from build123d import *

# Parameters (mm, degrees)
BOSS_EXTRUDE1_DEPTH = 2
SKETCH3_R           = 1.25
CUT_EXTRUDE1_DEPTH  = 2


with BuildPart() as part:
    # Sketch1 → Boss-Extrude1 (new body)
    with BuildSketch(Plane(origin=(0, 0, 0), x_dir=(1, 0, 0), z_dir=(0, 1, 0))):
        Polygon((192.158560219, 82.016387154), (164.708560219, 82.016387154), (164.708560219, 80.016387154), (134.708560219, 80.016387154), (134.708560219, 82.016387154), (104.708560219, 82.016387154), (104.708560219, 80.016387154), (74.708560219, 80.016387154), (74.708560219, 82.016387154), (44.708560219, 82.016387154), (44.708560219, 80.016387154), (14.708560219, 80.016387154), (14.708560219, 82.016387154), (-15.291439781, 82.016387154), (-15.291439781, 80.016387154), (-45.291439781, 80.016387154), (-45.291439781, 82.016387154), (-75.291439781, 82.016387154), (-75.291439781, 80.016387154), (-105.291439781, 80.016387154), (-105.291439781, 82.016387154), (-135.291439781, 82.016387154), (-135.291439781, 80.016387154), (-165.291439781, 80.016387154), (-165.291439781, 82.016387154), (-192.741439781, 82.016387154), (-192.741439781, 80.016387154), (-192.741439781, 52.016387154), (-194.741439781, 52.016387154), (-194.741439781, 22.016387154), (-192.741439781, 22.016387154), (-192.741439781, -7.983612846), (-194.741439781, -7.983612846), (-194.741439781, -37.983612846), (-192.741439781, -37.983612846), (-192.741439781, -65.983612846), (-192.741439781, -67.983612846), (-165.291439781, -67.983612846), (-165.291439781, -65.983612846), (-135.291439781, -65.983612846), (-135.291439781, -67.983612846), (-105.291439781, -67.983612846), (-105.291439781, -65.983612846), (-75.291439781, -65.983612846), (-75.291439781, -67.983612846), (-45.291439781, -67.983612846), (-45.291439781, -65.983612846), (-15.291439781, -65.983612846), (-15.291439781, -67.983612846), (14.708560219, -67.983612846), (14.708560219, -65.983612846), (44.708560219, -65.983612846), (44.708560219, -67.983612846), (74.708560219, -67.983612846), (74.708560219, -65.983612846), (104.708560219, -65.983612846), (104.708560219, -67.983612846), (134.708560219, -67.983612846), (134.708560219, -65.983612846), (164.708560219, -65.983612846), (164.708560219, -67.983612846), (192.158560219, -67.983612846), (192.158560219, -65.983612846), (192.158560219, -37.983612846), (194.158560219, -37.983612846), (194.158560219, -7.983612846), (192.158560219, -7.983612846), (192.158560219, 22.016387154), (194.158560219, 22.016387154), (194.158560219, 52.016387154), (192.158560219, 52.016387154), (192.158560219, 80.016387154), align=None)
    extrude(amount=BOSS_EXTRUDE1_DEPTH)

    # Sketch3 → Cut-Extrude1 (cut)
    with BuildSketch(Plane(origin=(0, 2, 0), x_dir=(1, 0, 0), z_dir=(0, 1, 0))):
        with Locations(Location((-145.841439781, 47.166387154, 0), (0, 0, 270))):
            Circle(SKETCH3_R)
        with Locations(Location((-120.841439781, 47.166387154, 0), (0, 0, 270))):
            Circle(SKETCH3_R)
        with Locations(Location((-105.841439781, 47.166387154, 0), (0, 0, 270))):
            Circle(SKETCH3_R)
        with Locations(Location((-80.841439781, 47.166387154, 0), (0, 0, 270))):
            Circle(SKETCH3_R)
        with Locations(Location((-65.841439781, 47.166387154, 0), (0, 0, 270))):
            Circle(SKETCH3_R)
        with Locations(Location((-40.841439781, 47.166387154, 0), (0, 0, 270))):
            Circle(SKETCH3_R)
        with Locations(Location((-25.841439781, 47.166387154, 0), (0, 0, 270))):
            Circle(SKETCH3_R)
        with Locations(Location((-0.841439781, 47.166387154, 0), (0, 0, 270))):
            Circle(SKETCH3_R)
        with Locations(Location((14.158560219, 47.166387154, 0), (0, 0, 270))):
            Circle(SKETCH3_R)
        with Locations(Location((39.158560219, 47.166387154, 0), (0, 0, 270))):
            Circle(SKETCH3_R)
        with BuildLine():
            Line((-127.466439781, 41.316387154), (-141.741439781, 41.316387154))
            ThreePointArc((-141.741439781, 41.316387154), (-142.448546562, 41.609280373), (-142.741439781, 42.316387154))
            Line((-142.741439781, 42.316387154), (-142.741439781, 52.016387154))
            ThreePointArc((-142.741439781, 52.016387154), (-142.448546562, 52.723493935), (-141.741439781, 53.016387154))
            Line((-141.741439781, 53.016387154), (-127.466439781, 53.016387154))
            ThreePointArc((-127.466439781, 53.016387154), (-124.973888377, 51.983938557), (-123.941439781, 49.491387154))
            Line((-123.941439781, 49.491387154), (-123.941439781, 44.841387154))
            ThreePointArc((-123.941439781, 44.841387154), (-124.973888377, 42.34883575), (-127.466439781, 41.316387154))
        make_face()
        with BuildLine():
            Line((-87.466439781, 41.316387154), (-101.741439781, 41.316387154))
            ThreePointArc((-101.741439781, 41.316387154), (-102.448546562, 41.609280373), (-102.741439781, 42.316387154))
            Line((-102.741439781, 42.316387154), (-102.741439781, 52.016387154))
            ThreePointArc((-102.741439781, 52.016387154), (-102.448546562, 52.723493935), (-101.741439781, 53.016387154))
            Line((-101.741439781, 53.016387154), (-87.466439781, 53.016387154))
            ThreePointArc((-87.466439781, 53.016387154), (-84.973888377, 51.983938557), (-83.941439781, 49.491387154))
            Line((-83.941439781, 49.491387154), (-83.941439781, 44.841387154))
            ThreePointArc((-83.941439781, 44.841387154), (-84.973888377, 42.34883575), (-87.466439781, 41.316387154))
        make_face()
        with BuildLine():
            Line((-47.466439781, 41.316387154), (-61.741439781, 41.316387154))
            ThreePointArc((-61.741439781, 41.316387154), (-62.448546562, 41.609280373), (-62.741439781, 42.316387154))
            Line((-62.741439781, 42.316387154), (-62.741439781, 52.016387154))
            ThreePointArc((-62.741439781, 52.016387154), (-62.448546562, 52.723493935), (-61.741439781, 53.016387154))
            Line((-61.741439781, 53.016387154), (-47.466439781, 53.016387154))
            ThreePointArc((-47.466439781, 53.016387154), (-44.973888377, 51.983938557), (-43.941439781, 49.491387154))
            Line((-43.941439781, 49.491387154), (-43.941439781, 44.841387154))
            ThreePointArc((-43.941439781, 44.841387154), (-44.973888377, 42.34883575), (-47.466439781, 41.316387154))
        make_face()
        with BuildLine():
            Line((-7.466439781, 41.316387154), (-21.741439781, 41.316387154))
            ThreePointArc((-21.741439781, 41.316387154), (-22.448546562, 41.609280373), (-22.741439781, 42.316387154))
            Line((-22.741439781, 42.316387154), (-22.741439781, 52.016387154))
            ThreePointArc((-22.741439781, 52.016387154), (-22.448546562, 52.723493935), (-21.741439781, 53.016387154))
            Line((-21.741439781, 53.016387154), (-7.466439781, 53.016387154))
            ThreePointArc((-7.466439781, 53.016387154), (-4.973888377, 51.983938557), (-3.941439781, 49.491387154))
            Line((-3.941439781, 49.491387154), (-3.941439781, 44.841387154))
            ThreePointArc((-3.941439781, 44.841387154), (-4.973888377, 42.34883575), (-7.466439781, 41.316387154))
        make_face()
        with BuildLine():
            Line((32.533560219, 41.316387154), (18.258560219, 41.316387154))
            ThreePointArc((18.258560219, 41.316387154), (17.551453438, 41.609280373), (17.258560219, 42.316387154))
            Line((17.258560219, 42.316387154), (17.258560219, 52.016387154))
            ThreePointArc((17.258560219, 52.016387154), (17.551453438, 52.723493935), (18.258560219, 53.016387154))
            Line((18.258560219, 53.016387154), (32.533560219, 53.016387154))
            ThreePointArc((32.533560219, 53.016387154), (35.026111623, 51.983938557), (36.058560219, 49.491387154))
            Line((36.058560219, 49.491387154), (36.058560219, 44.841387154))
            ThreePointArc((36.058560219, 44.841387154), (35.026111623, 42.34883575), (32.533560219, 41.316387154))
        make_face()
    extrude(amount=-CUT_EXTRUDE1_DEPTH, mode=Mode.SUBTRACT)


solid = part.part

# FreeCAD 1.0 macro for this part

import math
import FreeCAD as App
import Part
import Sketcher
from FreeCAD import Vector


def add_polygon(sketch, points):
    """Adds a closed chain of lines whose ends are joined by coincident constraints."""
    first, n = sketch.GeometryCount, len(points)
    for a, b in zip(points, points[1:] + points[:1]):
        sketch.addGeometry(Part.LineSegment(App.Vector(*a, 0), App.Vector(*b, 0)), False)
    for i in range(n):
        sketch.addConstraint(Sketcher.Constraint("Coincident", first + i, 2, first + (i + 1) % n, 1))

doc = App.newDocument("Part")
params = doc.addObject("Spreadsheet::Sheet", "Params")
for row, (alias, value) in enumerate([
    ("sketch1_width", "30 mm"),
    ("sketch1_width2", "2 mm"),
    ("sketch1_width3", "27.45 mm"),
    ("pad1_length", "2 mm"),
    ("sketch2_radius", "1 mm"),
    ("sketch2_diameter", "2.5 mm"),
    ("sketch2_height", "9.7 mm"),
    ("pocket1_length", "2 mm"),
], start=1):
    params.set(f"A{row}", alias)
    params.set(f"B{row}", "=" + value)
    params.setAlias(f"B{row}", alias)

body = doc.addObject("PartDesign::Body", "Body")

# Sketch on XZ plane
sketch1 = doc.addObject("Sketcher::SketchObject", "Sketch")
body.addObject(sketch1)
sketch1.AttachmentSupport = (doc.XZ_Plane, [""])
sketch1.MapMode = "FlatFace"
add_polygon(sketch1, [(192.2, -82), (164.7, -82), (164.7, -80), (134.7, -80), (134.7, -82), (104.7, -82), (104.7, -80), (74.7, -80), (74.7, -82), (44.7, -82), (44.7, -80), (14.7, -80), (14.7, -82), (-15.3, -82), (-15.3, -80), (-45.3, -80), (-45.3, -82), (-75.3, -82), (-75.3, -80), (-105.3, -80), (-105.3, -82), (-135.3, -82), (-135.3, -80), (-165.3, -80), (-165.3, -82), (-192.7, -82), (-192.7, -52), (-194.7, -52), (-194.7, -22), (-192.7, -22), (-192.7, 8), (-194.7, 8), (-194.7, 38), (-192.7, 38), (-192.7, 68), (-165.3, 68), (-165.3, 66), (-135.3, 66), (-135.3, 68), (-105.3, 68), (-105.3, 66), (-75.3, 66), (-75.3, 68), (-45.3, 68), (-45.3, 66), (-15.3, 66), (-15.3, 68), (14.7, 68), (14.7, 66), (44.7, 66), (44.7, 68), (74.7, 68), (74.7, 66), (104.7, 66), (104.7, 68), (134.7, 68), (134.7, 66), (164.7, 66), (164.7, 68), (192.2, 68), (192.2, 38), (194.2, 38), (194.2, 8), (192.2, 8), (192.2, -22), (194.2, -22), (194.2, -52), (192.2, -52)])  # lines 0-67
sketch1.addConstraint([
    Sketcher.Constraint("Horizontal", 0),
    Sketcher.Constraint("Vertical", 1),
    Sketcher.Constraint("Horizontal", 2),
    Sketcher.Constraint("Vertical", 3),
    Sketcher.Constraint("Horizontal", 4),
    Sketcher.Constraint("Vertical", 5),
    Sketcher.Constraint("Horizontal", 6),
    Sketcher.Constraint("Vertical", 7),
    Sketcher.Constraint("Horizontal", 8),
    Sketcher.Constraint("Vertical", 9),
    Sketcher.Constraint("Horizontal", 10),
    Sketcher.Constraint("Vertical", 11),
    Sketcher.Constraint("Horizontal", 12),
    Sketcher.Constraint("Vertical", 13),
    Sketcher.Constraint("Horizontal", 14),
    Sketcher.Constraint("Vertical", 15),
    Sketcher.Constraint("Horizontal", 16),
    Sketcher.Constraint("Vertical", 17),
    Sketcher.Constraint("Horizontal", 18),
    Sketcher.Constraint("Vertical", 19),
    Sketcher.Constraint("Horizontal", 20),
    Sketcher.Constraint("Vertical", 21),
    Sketcher.Constraint("Horizontal", 22),
    Sketcher.Constraint("Vertical", 23),
    Sketcher.Constraint("Horizontal", 24),
    Sketcher.Constraint("Vertical", 25),
    Sketcher.Constraint("Horizontal", 26),
    Sketcher.Constraint("Vertical", 27),
    Sketcher.Constraint("Horizontal", 28),
    Sketcher.Constraint("Vertical", 29),
    Sketcher.Constraint("Horizontal", 30),
    Sketcher.Constraint("Vertical", 31),
    Sketcher.Constraint("Horizontal", 32),
    Sketcher.Constraint("Vertical", 33),
    Sketcher.Constraint("Horizontal", 34),
    Sketcher.Constraint("Vertical", 35),
    Sketcher.Constraint("Horizontal", 36),
    Sketcher.Constraint("Vertical", 37),
    Sketcher.Constraint("Horizontal", 38),
    Sketcher.Constraint("Vertical", 39),
    Sketcher.Constraint("Horizontal", 40),
    Sketcher.Constraint("Vertical", 41),
    Sketcher.Constraint("Horizontal", 42),
    Sketcher.Constraint("Vertical", 43),
    Sketcher.Constraint("Horizontal", 44),
    Sketcher.Constraint("Vertical", 45),
    Sketcher.Constraint("Horizontal", 46),
    Sketcher.Constraint("Vertical", 47),
    Sketcher.Constraint("Horizontal", 48),
    Sketcher.Constraint("Vertical", 49),
    Sketcher.Constraint("Horizontal", 50),
    Sketcher.Constraint("Vertical", 51),
    Sketcher.Constraint("Horizontal", 52),
    Sketcher.Constraint("Vertical", 53),
    Sketcher.Constraint("Horizontal", 54),
    Sketcher.Constraint("Vertical", 55),
    Sketcher.Constraint("Horizontal", 56),
    Sketcher.Constraint("Vertical", 57),
    Sketcher.Constraint("Horizontal", 58),
    Sketcher.Constraint("Vertical", 59),
    Sketcher.Constraint("Horizontal", 60),
    Sketcher.Constraint("Vertical", 61),
    Sketcher.Constraint("Horizontal", 62),
    Sketcher.Constraint("Vertical", 63),
    Sketcher.Constraint("Horizontal", 64),
    Sketcher.Constraint("Vertical", 65),
    Sketcher.Constraint("Horizontal", 66),
    Sketcher.Constraint("Vertical", 67),
    Sketcher.Constraint("Horizontal", 0, 2, 3, 2),
    Sketcher.Constraint("Horizontal", 2, 2, 5, 2),
    Sketcher.Constraint("Horizontal", 4, 2, 7, 2),
    Sketcher.Constraint("Horizontal", 6, 2, 9, 2),
    Sketcher.Constraint("Horizontal", 8, 2, 11, 2),
    Sketcher.Constraint("Horizontal", 10, 2, 13, 2),
    Sketcher.Constraint("Horizontal", 12, 2, 15, 2),
    Sketcher.Constraint("Horizontal", 14, 2, 17, 2),
    Sketcher.Constraint("Horizontal", 16, 2, 19, 2),
    Sketcher.Constraint("Horizontal", 18, 2, 21, 2),
    Sketcher.Constraint("Horizontal", 20, 2, 23, 2),
    Sketcher.Constraint("Horizontal", 34, 2, 37, 2),
    Sketcher.Constraint("Horizontal", 36, 2, 39, 2),
    Sketcher.Constraint("Horizontal", 38, 2, 41, 2),
    Sketcher.Constraint("Horizontal", 40, 2, 43, 2),
    Sketcher.Constraint("Horizontal", 42, 2, 45, 2),
    Sketcher.Constraint("Horizontal", 44, 2, 47, 2),
    Sketcher.Constraint("Horizontal", 46, 2, 49, 2),
    Sketcher.Constraint("Horizontal", 48, 2, 51, 2),
    Sketcher.Constraint("Horizontal", 50, 2, 53, 2),
    Sketcher.Constraint("Horizontal", 52, 2, 55, 2),
    Sketcher.Constraint("Horizontal", 54, 2, 57, 2),
    Sketcher.Constraint("Horizontal", 32, 2, 59, 2),
    Sketcher.Constraint("Horizontal", 30, 2, 61, 2),
    Sketcher.Constraint("Horizontal", 28, 2, 63, 2),
    Sketcher.Constraint("Horizontal", 26, 2, 65, 2),
    Sketcher.Constraint("Vertical", 25, 2, 28, 2),
    Sketcher.Constraint("Vertical", 27, 2, 30, 2),
    Sketcher.Constraint("Vertical", 29, 2, 32, 2),
    Sketcher.Constraint("Vertical", 23, 2, 34, 2),
    Sketcher.Constraint("Vertical", 21, 2, 36, 2),
    Sketcher.Constraint("Vertical", 19, 2, 38, 2),
    Sketcher.Constraint("Vertical", 17, 2, 40, 2),
    Sketcher.Constraint("Vertical", 15, 2, 42, 2),
    Sketcher.Constraint("Vertical", 13, 2, 44, 2),
    Sketcher.Constraint("Vertical", 11, 2, 46, 2),
    Sketcher.Constraint("Vertical", 9, 2, 48, 2),
    Sketcher.Constraint("Vertical", 7, 2, 50, 2),
    Sketcher.Constraint("Vertical", 5, 2, 52, 2),
    Sketcher.Constraint("Vertical", 3, 2, 54, 2),
    Sketcher.Constraint("Vertical", 1, 2, 56, 2),
    Sketcher.Constraint("Vertical", 59, 2, 62, 2),
    Sketcher.Constraint("Vertical", 61, 2, 64, 2),
    Sketcher.Constraint("Vertical", 63, 2, 66, 2),
    Sketcher.Constraint("Equal", 2, 4),
    Sketcher.Constraint("Equal", 4, 6),
    Sketcher.Constraint("Equal", 6, 8),
    Sketcher.Constraint("Equal", 8, 10),
    Sketcher.Constraint("Equal", 10, 12),
    Sketcher.Constraint("Equal", 12, 14),
    Sketcher.Constraint("Equal", 14, 16),
    Sketcher.Constraint("Equal", 16, 18),
    Sketcher.Constraint("Equal", 18, 20),
    Sketcher.Constraint("Equal", 20, 22),
    Sketcher.Constraint("Equal", 0, 24),
    Sketcher.Constraint("Equal", 32, 60),
    Sketcher.Constraint("Equal", 66, 1),
    Sketcher.Constraint("Equal", 56, 25),
    Sketcher.Constraint("Equal", 25, 27),
    Sketcher.Constraint("Equal", 27, 29),
    Sketcher.Constraint("Equal", 29, 31),
    Sketcher.Constraint("Equal", 31, 33),
    Sketcher.Constraint("Equal", 23, 35),
    Sketcher.Constraint("DistanceX", 2, 2, 2, 1, 30.0),
    Sketcher.Constraint("DistanceX", 26, 2, 26, 1, 2.0),
    Sketcher.Constraint("DistanceX", 0, 2, 0, 1, 27.45),
    Sketcher.Constraint("DistanceX", -1, 1, 0, 2, 164.70856),
    Sketcher.Constraint("DistanceY", 0, 2, -1, 1, 82.016387),
])
sketch1.setExpression("Constraints[199]", "Params.sketch1_width")
sketch1.setExpression("Constraints[200]", "Params.sketch1_width2")
sketch1.setExpression("Constraints[201]", "Params.sketch1_width3")
pad1 = doc.addObject("PartDesign::Pad", "Pad")
body.addObject(pad1)
pad1.Profile = sketch1
pad1.setExpression("Length", "Params.pad1_length")
pad1.Reversed = True

# Sketch on XZ plane
sketch2 = doc.addObject("Sketcher::SketchObject", "Sketch001")
body.addObject(sketch2)
sketch2.AttachmentSupport = (doc.XZ_Plane, [""])
sketch2.MapMode = "FlatFace"
sketch2.AttachmentOffset = App.Placement(Vector(0, 0, -2), App.Rotation())
sketch2.addGeometry([
    Part.Circle(Vector(-145.8, -47.2, 0), Vector(0, 0, 1), 1.2),  # 0
    Part.Circle(Vector(-120.8, -47.2, 0), Vector(0, 0, 1), 1.2),  # 1
    Part.Circle(Vector(-105.8, -47.2, 0), Vector(0, 0, 1), 1.2),  # 2
    Part.Circle(Vector(-80.8, -47.2, 0), Vector(0, 0, 1), 1.2),  # 3
    Part.Circle(Vector(-65.8, -47.2, 0), Vector(0, 0, 1), 1.2),  # 4
    Part.Circle(Vector(-40.8, -47.2, 0), Vector(0, 0, 1), 1.2),  # 5
    Part.Circle(Vector(-25.8, -47.2, 0), Vector(0, 0, 1), 1.2),  # 6
    Part.Circle(Vector(-0.8, -47.2, 0), Vector(0, 0, 1), 1.2),  # 7
    Part.Circle(Vector(14.2, -47.2, 0), Vector(0, 0, 1), 1.2),  # 8
    Part.Circle(Vector(39.2, -47.2, 0), Vector(0, 0, 1), 1.2),  # 9
    Part.LineSegment(Vector(-141.7, -41.3, 0), Vector(-127.5, -41.3, 0)),  # 10
    Part.ArcOfCircle(Part.Circle(Vector(-127.5, -44.8, 0), Vector(0, 0, 1), 3.5), math.radians(0), math.radians(90)),  # 11
    Part.LineSegment(Vector(-123.9, -44.8, 0), Vector(-123.9, -49.5, 0)),  # 12
    Part.ArcOfCircle(Part.Circle(Vector(-127.5, -49.5, 0), Vector(0, 0, 1), 3.5), math.radians(-90), math.radians(0)),  # 13
    Part.LineSegment(Vector(-127.5, -53, 0), Vector(-141.7, -53, 0)),  # 14
    Part.ArcOfCircle(Part.Circle(Vector(-141.7, -52, 0), Vector(0, 0, 1), 1), math.radians(-180), math.radians(-90)),  # 15
    Part.LineSegment(Vector(-142.7, -52, 0), Vector(-142.7, -42.3, 0)),  # 16
    Part.ArcOfCircle(Part.Circle(Vector(-141.7, -42.3, 0), Vector(0, 0, 1), 1), math.radians(90), math.radians(180)),  # 17
    Part.LineSegment(Vector(-101.7, -41.3, 0), Vector(-87.5, -41.3, 0)),  # 18
    Part.ArcOfCircle(Part.Circle(Vector(-87.5, -44.8, 0), Vector(0, 0, 1), 3.5), math.radians(0), math.radians(90)),  # 19
    Part.LineSegment(Vector(-83.9, -44.8, 0), Vector(-83.9, -49.5, 0)),  # 20
    Part.ArcOfCircle(Part.Circle(Vector(-87.5, -49.5, 0), Vector(0, 0, 1), 3.5), math.radians(-90), math.radians(0)),  # 21
    Part.LineSegment(Vector(-87.5, -53, 0), Vector(-101.7, -53, 0)),  # 22
    Part.ArcOfCircle(Part.Circle(Vector(-101.7, -52, 0), Vector(0, 0, 1), 1), math.radians(-180), math.radians(-90)),  # 23
    Part.LineSegment(Vector(-102.7, -52, 0), Vector(-102.7, -42.3, 0)),  # 24
    Part.ArcOfCircle(Part.Circle(Vector(-101.7, -42.3, 0), Vector(0, 0, 1), 1), math.radians(90), math.radians(180)),  # 25
    Part.LineSegment(Vector(-61.7, -41.3, 0), Vector(-47.5, -41.3, 0)),  # 26
    Part.ArcOfCircle(Part.Circle(Vector(-47.5, -44.8, 0), Vector(0, 0, 1), 3.5), math.radians(0), math.radians(90)),  # 27
    Part.LineSegment(Vector(-43.9, -44.8, 0), Vector(-43.9, -49.5, 0)),  # 28
    Part.ArcOfCircle(Part.Circle(Vector(-47.5, -49.5, 0), Vector(0, 0, 1), 3.5), math.radians(-90), math.radians(0)),  # 29
    Part.LineSegment(Vector(-47.5, -53, 0), Vector(-61.7, -53, 0)),  # 30
    Part.ArcOfCircle(Part.Circle(Vector(-61.7, -52, 0), Vector(0, 0, 1), 1), math.radians(-180), math.radians(-90)),  # 31
    Part.LineSegment(Vector(-62.7, -52, 0), Vector(-62.7, -42.3, 0)),  # 32
    Part.ArcOfCircle(Part.Circle(Vector(-61.7, -42.3, 0), Vector(0, 0, 1), 1), math.radians(90), math.radians(180)),  # 33
    Part.LineSegment(Vector(-21.7, -41.3, 0), Vector(-7.5, -41.3, 0)),  # 34
    Part.ArcOfCircle(Part.Circle(Vector(-7.5, -44.8, 0), Vector(0, 0, 1), 3.5), math.radians(0), math.radians(90)),  # 35
    Part.LineSegment(Vector(-3.9, -44.8, 0), Vector(-3.9, -49.5, 0)),  # 36
    Part.ArcOfCircle(Part.Circle(Vector(-7.5, -49.5, 0), Vector(0, 0, 1), 3.5), math.radians(-90), math.radians(0)),  # 37
    Part.LineSegment(Vector(-7.5, -53, 0), Vector(-21.7, -53, 0)),  # 38
    Part.ArcOfCircle(Part.Circle(Vector(-21.7, -52, 0), Vector(0, 0, 1), 1), math.radians(-180), math.radians(-90)),  # 39
    Part.LineSegment(Vector(-22.7, -52, 0), Vector(-22.7, -42.3, 0)),  # 40
    Part.ArcOfCircle(Part.Circle(Vector(-21.7, -42.3, 0), Vector(0, 0, 1), 1), math.radians(90), math.radians(180)),  # 41
    Part.LineSegment(Vector(18.3, -41.3, 0), Vector(32.5, -41.3, 0)),  # 42
    Part.ArcOfCircle(Part.Circle(Vector(32.5, -44.8, 0), Vector(0, 0, 1), 3.5), math.radians(0), math.radians(90)),  # 43
    Part.LineSegment(Vector(36.1, -44.8, 0), Vector(36.1, -49.5, 0)),  # 44
    Part.ArcOfCircle(Part.Circle(Vector(32.5, -49.5, 0), Vector(0, 0, 1), 3.5), math.radians(-90), math.radians(0)),  # 45
    Part.LineSegment(Vector(32.5, -53, 0), Vector(18.3, -53, 0)),  # 46
    Part.ArcOfCircle(Part.Circle(Vector(18.3, -52, 0), Vector(0, 0, 1), 1), math.radians(-180), math.radians(-90)),  # 47
    Part.LineSegment(Vector(17.3, -52, 0), Vector(17.3, -42.3, 0)),  # 48
    Part.ArcOfCircle(Part.Circle(Vector(18.3, -42.3, 0), Vector(0, 0, 1), 1), math.radians(90), math.radians(180)),  # 49
], False)
sketch2.addConstraint([
    Sketcher.Constraint("Tangent", 10, 2, 11, 2),
    Sketcher.Constraint("Tangent", 11, 1, 12, 1),
    Sketcher.Constraint("Tangent", 12, 2, 13, 2),
    Sketcher.Constraint("Tangent", 13, 1, 14, 1),
    Sketcher.Constraint("Tangent", 14, 2, 15, 2),
    Sketcher.Constraint("Tangent", 15, 1, 16, 1),
    Sketcher.Constraint("Tangent", 16, 2, 17, 2),
    Sketcher.Constraint("Tangent", 17, 1, 10, 1),
    Sketcher.Constraint("Tangent", 18, 2, 19, 2),
    Sketcher.Constraint("Tangent", 19, 1, 20, 1),
    Sketcher.Constraint("Tangent", 20, 2, 21, 2),
    Sketcher.Constraint("Tangent", 21, 1, 22, 1),
    Sketcher.Constraint("Tangent", 22, 2, 23, 2),
    Sketcher.Constraint("Tangent", 23, 1, 24, 1),
    Sketcher.Constraint("Tangent", 24, 2, 25, 2),
    Sketcher.Constraint("Tangent", 25, 1, 18, 1),
    Sketcher.Constraint("Tangent", 26, 2, 27, 2),
    Sketcher.Constraint("Tangent", 27, 1, 28, 1),
    Sketcher.Constraint("Tangent", 28, 2, 29, 2),
    Sketcher.Constraint("Tangent", 29, 1, 30, 1),
    Sketcher.Constraint("Tangent", 30, 2, 31, 2),
    Sketcher.Constraint("Tangent", 31, 1, 32, 1),
    Sketcher.Constraint("Tangent", 32, 2, 33, 2),
    Sketcher.Constraint("Tangent", 33, 1, 26, 1),
    Sketcher.Constraint("Tangent", 34, 2, 35, 2),
    Sketcher.Constraint("Tangent", 35, 1, 36, 1),
    Sketcher.Constraint("Tangent", 36, 2, 37, 2),
    Sketcher.Constraint("Tangent", 37, 1, 38, 1),
    Sketcher.Constraint("Tangent", 38, 2, 39, 2),
    Sketcher.Constraint("Tangent", 39, 1, 40, 1),
    Sketcher.Constraint("Tangent", 40, 2, 41, 2),
    Sketcher.Constraint("Tangent", 41, 1, 34, 1),
    Sketcher.Constraint("Tangent", 42, 2, 43, 2),
    Sketcher.Constraint("Tangent", 43, 1, 44, 1),
    Sketcher.Constraint("Tangent", 44, 2, 45, 2),
    Sketcher.Constraint("Tangent", 45, 1, 46, 1),
    Sketcher.Constraint("Tangent", 46, 2, 47, 2),
    Sketcher.Constraint("Tangent", 47, 1, 48, 1),
    Sketcher.Constraint("Tangent", 48, 2, 49, 2),
    Sketcher.Constraint("Tangent", 49, 1, 42, 1),
    Sketcher.Constraint("Horizontal", 10),
    Sketcher.Constraint("Vertical", 12),
    Sketcher.Constraint("Horizontal", 14),
    Sketcher.Constraint("Vertical", 16),
    Sketcher.Constraint("Horizontal", 18),
    Sketcher.Constraint("Vertical", 20),
    Sketcher.Constraint("Horizontal", 22),
    Sketcher.Constraint("Vertical", 24),
    Sketcher.Constraint("Horizontal", 26),
    Sketcher.Constraint("Vertical", 28),
    Sketcher.Constraint("Horizontal", 30),
    Sketcher.Constraint("Vertical", 32),
    Sketcher.Constraint("Horizontal", 34),
    Sketcher.Constraint("Vertical", 36),
    Sketcher.Constraint("Horizontal", 38),
    Sketcher.Constraint("Vertical", 40),
    Sketcher.Constraint("Horizontal", 42),
    Sketcher.Constraint("Vertical", 44),
    Sketcher.Constraint("Horizontal", 46),
    Sketcher.Constraint("Vertical", 48),
    Sketcher.Constraint("Equal", 0, 1),
    Sketcher.Constraint("Equal", 1, 2),
    Sketcher.Constraint("Equal", 2, 3),
    Sketcher.Constraint("Equal", 3, 4),
    Sketcher.Constraint("Equal", 4, 5),
    Sketcher.Constraint("Equal", 5, 6),
    Sketcher.Constraint("Equal", 6, 7),
    Sketcher.Constraint("Equal", 7, 8),
    Sketcher.Constraint("Equal", 8, 9),
    Sketcher.Constraint("Equal", 11, 13),
    Sketcher.Constraint("Equal", 15, 17),
    Sketcher.Constraint("Equal", 13, 19),
    Sketcher.Constraint("Equal", 19, 21),
    Sketcher.Constraint("Equal", 17, 23),
    Sketcher.Constraint("Equal", 23, 25),
    Sketcher.Constraint("Equal", 21, 27),
    Sketcher.Constraint("Equal", 27, 29),
    Sketcher.Constraint("Equal", 25, 31),
    Sketcher.Constraint("Equal", 31, 33),
    Sketcher.Constraint("Equal", 29, 35),
    Sketcher.Constraint("Equal", 35, 37),
    Sketcher.Constraint("Equal", 33, 39),
    Sketcher.Constraint("Equal", 39, 41),
    Sketcher.Constraint("Equal", 37, 43),
    Sketcher.Constraint("Equal", 43, 45),
    Sketcher.Constraint("Equal", 41, 47),
    Sketcher.Constraint("Equal", 47, 49),
    Sketcher.Constraint("Horizontal", 0, 3, 1, 3),
    Sketcher.Constraint("Horizontal", 1, 3, 2, 3),
    Sketcher.Constraint("Horizontal", 2, 3, 3, 3),
    Sketcher.Constraint("Horizontal", 3, 3, 4, 3),
    Sketcher.Constraint("Horizontal", 4, 3, 5, 3),
    Sketcher.Constraint("Horizontal", 5, 3, 6, 3),
    Sketcher.Constraint("Horizontal", 6, 3, 7, 3),
    Sketcher.Constraint("Horizontal", 7, 3, 8, 3),
    Sketcher.Constraint("Horizontal", 8, 3, 9, 3),
    Sketcher.Constraint("Horizontal", 11, 3, 19, 3),
    Sketcher.Constraint("Horizontal", 13, 3, 21, 3),
    Sketcher.Constraint("Horizontal", 19, 3, 27, 3),
    Sketcher.Constraint("Horizontal", 21, 3, 29, 3),
    Sketcher.Constraint("Horizontal", 27, 3, 35, 3),
    Sketcher.Constraint("Horizontal", 29, 3, 37, 3),
    Sketcher.Constraint("Horizontal", 35, 3, 43, 3),
    Sketcher.Constraint("Horizontal", 37, 3, 45, 3),
    Sketcher.Constraint("Equal", 14, 18),
    Sketcher.Constraint("Equal", 22, 26),
    Sketcher.Constraint("Equal", 30, 34),
    Sketcher.Constraint("Equal", 38, 42),
    Sketcher.Constraint("Radius", 15, 1.0),
    Sketcher.Constraint("Diameter", 0, 2.5),
    Sketcher.Constraint("DistanceY", 16, 1, 16, 2, 9.7),
    Sketcher.Constraint("Radius", 11, 3.525),
    Sketcher.Constraint("DistanceX", 10, 1, 10, 2, 14.275),
    Sketcher.Constraint("DistanceX", 0, 3, -1, 1, 145.84144),
    Sketcher.Constraint("DistanceX", 1, 3, -1, 1, 120.84144),
    Sketcher.Constraint("DistanceX", 2, 3, -1, 1, 105.84144),
    Sketcher.Constraint("DistanceX", 3, 3, -1, 1, 80.84144),
    Sketcher.Constraint("DistanceX", 4, 3, -1, 1, 65.84144),
    Sketcher.Constraint("DistanceX", 5, 3, -1, 1, 40.84144),
    Sketcher.Constraint("DistanceX", 6, 3, -1, 1, 25.84144),
    Sketcher.Constraint("DistanceX", 7, 3, -1, 1, 0.84144),
    Sketcher.Constraint("DistanceX", -1, 1, 8, 3, 14.15856),
    Sketcher.Constraint("DistanceX", -1, 1, 9, 3, 39.15856),
    Sketcher.Constraint("DistanceX", 11, 3, -1, 1, 127.46644),
    Sketcher.Constraint("DistanceX", 19, 3, -1, 1, 87.46644),
    Sketcher.Constraint("DistanceX", 27, 3, -1, 1, 47.46644),
    Sketcher.Constraint("DistanceX", 35, 3, -1, 1, 7.46644),
    Sketcher.Constraint("DistanceX", -1, 1, 43, 3, 32.53356),
    Sketcher.Constraint("DistanceY", 0, 3, -1, 1, 47.166387),
    Sketcher.Constraint("DistanceY", 11, 3, -1, 1, 44.841387),
])
sketch2.setExpression("Constraints[108]", "Params.sketch2_radius")
sketch2.setExpression("Constraints[109]", "Params.sketch2_diameter")
sketch2.setExpression("Constraints[110]", "Params.sketch2_height")
pocket1 = doc.addObject("PartDesign::Pocket", "Pocket")
body.addObject(pocket1)
pocket1.Profile = sketch2
pocket1.setExpression("Length", "Params.pocket1_length")
pocket1.Reversed = True

doc.recompute()
